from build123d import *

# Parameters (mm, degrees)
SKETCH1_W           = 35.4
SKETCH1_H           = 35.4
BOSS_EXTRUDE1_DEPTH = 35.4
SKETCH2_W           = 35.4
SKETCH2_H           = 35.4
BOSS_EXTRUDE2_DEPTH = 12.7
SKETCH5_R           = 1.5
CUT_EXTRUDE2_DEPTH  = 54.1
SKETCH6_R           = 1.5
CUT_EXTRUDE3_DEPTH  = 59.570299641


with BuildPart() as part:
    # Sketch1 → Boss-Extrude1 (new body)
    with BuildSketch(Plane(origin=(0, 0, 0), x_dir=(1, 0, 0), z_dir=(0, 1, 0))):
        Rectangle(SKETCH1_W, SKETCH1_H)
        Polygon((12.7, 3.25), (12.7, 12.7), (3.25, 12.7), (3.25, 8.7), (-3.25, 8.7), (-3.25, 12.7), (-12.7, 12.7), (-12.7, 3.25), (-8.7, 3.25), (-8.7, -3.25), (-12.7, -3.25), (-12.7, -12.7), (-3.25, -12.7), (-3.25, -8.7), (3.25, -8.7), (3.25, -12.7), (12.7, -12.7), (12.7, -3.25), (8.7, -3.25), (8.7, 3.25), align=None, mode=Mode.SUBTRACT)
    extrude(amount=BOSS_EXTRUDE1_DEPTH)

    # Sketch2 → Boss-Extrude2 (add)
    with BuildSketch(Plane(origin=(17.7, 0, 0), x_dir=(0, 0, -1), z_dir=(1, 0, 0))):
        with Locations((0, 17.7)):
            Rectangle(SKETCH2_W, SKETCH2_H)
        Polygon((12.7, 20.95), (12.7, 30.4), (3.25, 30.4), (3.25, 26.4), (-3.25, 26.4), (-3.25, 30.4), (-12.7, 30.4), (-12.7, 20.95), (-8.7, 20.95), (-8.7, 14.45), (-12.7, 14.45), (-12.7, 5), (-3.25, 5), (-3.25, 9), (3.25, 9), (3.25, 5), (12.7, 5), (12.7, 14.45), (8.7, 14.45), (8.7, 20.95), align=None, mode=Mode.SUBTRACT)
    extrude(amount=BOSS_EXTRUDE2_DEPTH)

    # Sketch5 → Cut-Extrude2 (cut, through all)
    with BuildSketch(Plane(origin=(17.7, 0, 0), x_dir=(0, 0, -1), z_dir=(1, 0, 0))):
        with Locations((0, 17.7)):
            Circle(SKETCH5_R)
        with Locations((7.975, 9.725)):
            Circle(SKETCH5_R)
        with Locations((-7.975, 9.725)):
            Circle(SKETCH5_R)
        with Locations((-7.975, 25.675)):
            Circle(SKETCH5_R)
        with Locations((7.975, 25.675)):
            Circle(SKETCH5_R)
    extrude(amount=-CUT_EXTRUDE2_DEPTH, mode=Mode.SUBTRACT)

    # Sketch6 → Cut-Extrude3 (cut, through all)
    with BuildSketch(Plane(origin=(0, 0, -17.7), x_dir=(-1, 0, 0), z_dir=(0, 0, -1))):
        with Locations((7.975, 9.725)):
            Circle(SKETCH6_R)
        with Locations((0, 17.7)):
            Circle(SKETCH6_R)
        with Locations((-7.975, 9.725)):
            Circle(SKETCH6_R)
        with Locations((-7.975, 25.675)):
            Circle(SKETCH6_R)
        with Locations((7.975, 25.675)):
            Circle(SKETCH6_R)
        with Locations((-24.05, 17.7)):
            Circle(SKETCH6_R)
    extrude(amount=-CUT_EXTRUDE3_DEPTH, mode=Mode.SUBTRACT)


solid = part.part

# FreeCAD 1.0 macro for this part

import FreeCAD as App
import Part
import Sketcher
Q = App.Units.Quantity


def add_polygon(sketch, points):
    """Adds a closed chain of lines whose ends are joined by coincident constraints."""
    first, n = sketch.GeometryCount, len(points)
    for a, b in zip(points, points[1:] + points[:1]):
        sketch.addGeometry(Part.LineSegment(App.Vector(*a, 0), App.Vector(*b, 0)), False)
    for i in range(n):
        sketch.addConstraint(Sketcher.Constraint("Coincident", first + i, 2, first + (i + 1) % n, 1))

doc = App.newDocument("Part")
params = doc.addObject("Spreadsheet::Sheet", "Params")
for row, (alias, value) in enumerate([
    ("sketch1_width", "4 mm"),
    ("sketch1_width2", "35.4 mm"),
    ("sketch1_width3", "6.5 mm"),
    ("pad1_length", "35.4 mm"),
    ("sketch2_width", "4 mm"),
    ("sketch2_width2", "35.4 mm"),
    ("sketch2_width3", "6.5 mm"),
    ("pad2_length", "12.7 mm"),
    ("sketch3_diameter", "3 mm"),
    ("sketch4_diameter", "3 mm"),
], start=1):
    params.set(f"A{row}", alias)
    params.set(f"B{row}", "=" + value)
    params.setAlias(f"B{row}", alias)

body = doc.addObject("PartDesign::Body", "Body")

sketch1 = doc.addObject("Sketcher::SketchObject", "Sketch")
body.addObject(sketch1)
sketch1.AttachmentSupport = (doc.XZ_Plane, [""])
sketch1.MapMode = "FlatFace"
add_polygon(sketch1, [(-17.7, -17.7), (-17.7, 17.7), (17.7, 17.7), (17.7, -17.7)])
add_polygon(sketch1, [(12.7, -12.7), (12.7, -3.25), (8.7, -3.25), (8.7, 3.25), (12.7, 3.25), (12.7, 12.7), (3.25, 12.7), (3.25, 8.7), (-3.25, 8.7), (-3.25, 12.7), (-12.7, 12.7), (-12.7, 3.25), (-8.7, 3.25), (-8.7, -3.25), (-12.7, -3.25), (-12.7, -12.7), (-3.25, -12.7), (-3.25, -8.7), (3.25, -8.7), (3.25, -12.7)])
sketch1.addConstraint([
    Sketcher.Constraint("Vertical", 0),
    Sketcher.Constraint("Horizontal", 1),
    Sketcher.Constraint("Vertical", 2),
    Sketcher.Constraint("Horizontal", 3),
    Sketcher.Constraint("Vertical", 4),
    Sketcher.Constraint("Horizontal", 5),
    Sketcher.Constraint("Vertical", 6),
    Sketcher.Constraint("Horizontal", 7),
    Sketcher.Constraint("Vertical", 8),
    Sketcher.Constraint("Horizontal", 9),
    Sketcher.Constraint("Vertical", 10),
    Sketcher.Constraint("Horizontal", 11),
    Sketcher.Constraint("Vertical", 12),
    Sketcher.Constraint("Horizontal", 13),
    Sketcher.Constraint("Vertical", 14),
    Sketcher.Constraint("Horizontal", 15),
    Sketcher.Constraint("Vertical", 16),
    Sketcher.Constraint("Horizontal", 17),
    Sketcher.Constraint("Vertical", 18),
    Sketcher.Constraint("Horizontal", 19),
    Sketcher.Constraint("Vertical", 20),
    Sketcher.Constraint("Horizontal", 21),
    Sketcher.Constraint("Vertical", 22),
    Sketcher.Constraint("Horizontal", 23),
    Sketcher.Constraint("Symmetric", 0, 2, 2, 2, -1, 1),
    Sketcher.Constraint("Symmetric", 4, 2, 14, 2, -1, 1),
    Sketcher.Constraint("Symmetric", 6, 2, 16, 2, -1, 1),
    Sketcher.Constraint("Symmetric", 8, 2, 18, 2, -1, 1),
    Sketcher.Constraint("Symmetric", 10, 2, 20, 2, -1, 1),
    Sketcher.Constraint("Symmetric", 12, 2, 22, 2, -1, 1),
    Sketcher.Constraint("Symmetric", 9, 2, 12, 2, -2),
    Sketcher.Constraint("Symmetric", 7, 2, 14, 2, -2),
    Sketcher.Constraint("Equal", 3, 0),
    Sketcher.Constraint("Equal", 23, 4),
    Sketcher.Constraint("Equal", 21, 6),
    Sketcher.Constraint("Equal", 17, 10),
    Sketcher.Constraint("DistanceX", 5, 2, 5, 1, Q("4 mm")),
    Sketcher.Constraint("DistanceX", 1, 1, 1, 2, Q("35.4 mm")),
    Sketcher.Constraint("DistanceX", 11, 2, 11, 1, Q("6.5 mm")),
    Sketcher.Constraint("DistanceX", 4, 2, 2, 2, Q("5 mm")),
])
sketch1.setExpression("Constraints[60]", "Params.sketch1_width")
sketch1.setExpression("Constraints[61]", "Params.sketch1_width2")
sketch1.setExpression("Constraints[62]", "Params.sketch1_width3")
pad1 = doc.addObject("PartDesign::Pad", "Pad")
body.addObject(pad1)
pad1.Profile = sketch1
pad1.setExpression("Length", "Params.pad1_length")
pad1.Reversed = True

sketch2 = doc.addObject("Sketcher::SketchObject", "Sketch001")
body.addObject(sketch2)
sketch2.AttachmentSupport = (doc.YZ_Plane, [""])
sketch2.MapMode = "FlatFace"
sketch2.AttachmentOffset = App.Placement(App.Vector(0, 0, 17.7), App.Rotation())
add_polygon(sketch2, [(35.4, 17.7), (0, 17.7), (0, -17.7), (35.4, -17.7)])
add_polygon(sketch2, [(30.4, -12.7), (20.95, -12.7), (20.95, -8.7), (14.45, -8.7), (14.45, -12.7), (5, -12.7), (5, -3.25), (9, -3.25), (9, 3.25), (5, 3.25), (5, 12.7), (14.45, 12.7), (14.45, 8.7), (20.95, 8.7), (20.95, 12.7), (30.4, 12.7), (30.4, 3.25), (26.4, 3.25), (26.4, -3.25), (30.4, -3.25)])
sketch2.addConstraint([
    Sketcher.Constraint("Horizontal", 0),
    Sketcher.Constraint("Vertical", 1),
    Sketcher.Constraint("Horizontal", 2),
    Sketcher.Constraint("Vertical", 3),
    Sketcher.Constraint("Horizontal", 4),
    Sketcher.Constraint("Vertical", 5),
    Sketcher.Constraint("Horizontal", 6),
    Sketcher.Constraint("Vertical", 7),
    Sketcher.Constraint("Horizontal", 8),
    Sketcher.Constraint("Vertical", 9),
    Sketcher.Constraint("Horizontal", 10),
    Sketcher.Constraint("Vertical", 11),
    Sketcher.Constraint("Horizontal", 12),
    Sketcher.Constraint("Vertical", 13),
    Sketcher.Constraint("Horizontal", 14),
    Sketcher.Constraint("Vertical", 15),
    Sketcher.Constraint("Horizontal", 16),
    Sketcher.Constraint("Vertical", 17),
    Sketcher.Constraint("Horizontal", 18),
    Sketcher.Constraint("Vertical", 19),
    Sketcher.Constraint("Horizontal", 20),
    Sketcher.Constraint("Vertical", 21),
    Sketcher.Constraint("Horizontal", 22),
    Sketcher.Constraint("Vertical", 23),
    Sketcher.Constraint("Symmetric", 0, 2, 1, 2, -1, 1),
    Sketcher.Constraint("Symmetric", 9, 2, 12, 2, -1),
    Sketcher.Constraint("Symmetric", 7, 2, 14, 2, -1),
    Sketcher.Constraint("Symmetric", 5, 2, 16, 2, -1),
    Sketcher.Constraint("Symmetric", 19, 2, 22, 2, -1),
    Sketcher.Constraint("Horizontal", 4, 2, 7, 2),
    Sketcher.Constraint("Horizontal", 14, 2, 17, 2),
    Sketcher.Constraint("Horizontal", 12, 2, 19, 2),
    Sketcher.Constraint("Equal", 4, 8),
    Sketcher.Constraint("Equal", 12, 20),
    Sketcher.Constraint("Equal", 2, 1),
    Sketcher.Constraint("Equal", 22, 5),
    Sketcher.Constraint("Equal", 18, 9),
    Sketcher.Constraint("Equal", 16, 11),
    Sketcher.Constraint("DistanceX", 10, 1, 10, 2, Q("4 mm")),
    Sketcher.Constraint("DistanceX", 0, 2, 0, 1, Q("35.4 mm")),
    Sketcher.Constraint("DistanceX", 6, 2, 6, 1, Q("6.5 mm")),
    Sketcher.Constraint("DistanceX", -1, 1, 8, 2, Q("5 mm")),
    Sketcher.Constraint("DistanceY", 2, 2, 4, 2, Q("5 mm")),
])
sketch2.setExpression("Constraints[62]", "Params.sketch2_width")
sketch2.setExpression("Constraints[63]", "Params.sketch2_width2")
sketch2.setExpression("Constraints[64]", "Params.sketch2_width3")
pad2 = doc.addObject("PartDesign::Pad", "Pad001")
body.addObject(pad2)
pad2.Profile = sketch2
pad2.setExpression("Length", "Params.pad2_length")

sketch3 = doc.addObject("Sketcher::SketchObject", "Sketch002")
body.addObject(sketch3)
sketch3.AttachmentSupport = (doc.YZ_Plane, [""])
sketch3.MapMode = "FlatFace"
sketch3.AttachmentOffset = App.Placement(App.Vector(0, 0, 17.7), App.Rotation())
sketch3.addGeometry([
    Part.Circle(App.Vector(17.7, 0, 0), App.Vector(0, 0, 1), 1.5),
    Part.Circle(App.Vector(9.725, -7.975, 0), App.Vector(0, 0, 1), 1.5),
    Part.Circle(App.Vector(9.725, 7.975, 0), App.Vector(0, 0, 1), 1.5),
    Part.Circle(App.Vector(25.675, 7.975, 0), App.Vector(0, 0, 1), 1.5),
    Part.Circle(App.Vector(25.675, -7.975, 0), App.Vector(0, 0, 1), 1.5),
], False)
sketch3.addConstraint([
    Sketcher.Constraint("Equal", 0, 1),
    Sketcher.Constraint("Equal", 1, 2),
    Sketcher.Constraint("Equal", 2, 3),
    Sketcher.Constraint("Equal", 3, 4),
    Sketcher.Constraint("Symmetric", 1, 3, 2, 3, -1),
    Sketcher.Constraint("Symmetric", 3, 3, 4, 3, -1),
    Sketcher.Constraint("PointOnObject", 0, 3, -1),
    Sketcher.Constraint("Horizontal", 2, 3, 3, 3),
    Sketcher.Constraint("Diameter", 0, Q("3 mm")),
    Sketcher.Constraint("DistanceX", -1, 1, 0, 3, Q("17.7 mm")),
    Sketcher.Constraint("DistanceY", 1, 3, 2, 3, Q("15.95 mm")),
    Sketcher.Constraint("DistanceX", 2, 3, 3, 3, Q("15.95 mm")),
    Sketcher.Constraint("DistanceX", -1, 1, 1, 3, Q("9.725 mm")),
])
sketch3.setExpression("Constraints[8]", "Params.sketch3_diameter")
pocket1 = doc.addObject("PartDesign::Pocket", "Pocket")
body.addObject(pocket1)
pocket1.Profile = sketch3
pocket1.Type = "ThroughAll"

sketch4 = doc.addObject("Sketcher::SketchObject", "Sketch003")
body.addObject(sketch4)
sketch4.AttachmentSupport = (doc.XY_Plane, [""])
sketch4.MapMode = "FlatFace"
sketch4.AttachmentOffset = App.Placement(App.Vector(0, 0, -17.7), App.Rotation())
sketch4.addGeometry([
    Part.Circle(App.Vector(-7.975, 9.725, 0), App.Vector(0, 0, 1), 1.5),
    Part.Circle(App.Vector(0, 17.7, 0), App.Vector(0, 0, 1), 1.5),
    Part.Circle(App.Vector(7.975, 9.725, 0), App.Vector(0, 0, 1), 1.5),
    Part.Circle(App.Vector(7.975, 25.675, 0), App.Vector(0, 0, 1), 1.5),
    Part.Circle(App.Vector(-7.975, 25.675, 0), App.Vector(0, 0, 1), 1.5),
    Part.Circle(App.Vector(24.05, 17.7, 0), App.Vector(0, 0, 1), 1.5),
], False)
sketch4.addConstraint([
    Sketcher.Constraint("Equal", 0, 1),
    Sketcher.Constraint("Equal", 1, 2),
    Sketcher.Constraint("Equal", 2, 3),
    Sketcher.Constraint("Equal", 3, 4),
    Sketcher.Constraint("Equal", 4, 5),
    Sketcher.Constraint("Symmetric", 0, 3, 2, 3, -2),
    Sketcher.Constraint("Symmetric", 3, 3, 4, 3, -2),
    Sketcher.Constraint("PointOnObject", 1, 3, -2),
    Sketcher.Constraint("Horizontal", 1, 3, 5, 3),
    Sketcher.Constraint("Vertical", 2, 3, 3, 3),
    Sketcher.Constraint("Diameter", 0, Q("3 mm")),
    Sketcher.Constraint("DistanceY", -1, 1, 1, 3, Q("17.7 mm")),
    Sketcher.Constraint("DistanceX", -1, 1, 5, 3, Q("24.05 mm")),
    Sketcher.Constraint("DistanceX", 0, 3, 2, 3, Q("15.95 mm")),
    Sketcher.Constraint("DistanceY", 2, 3, 3, 3, Q("15.95 mm")),
    Sketcher.Constraint("DistanceY", -1, 1, 0, 3, Q("9.725 mm")),
])
sketch4.setExpression("Constraints[10]", "Params.sketch4_diameter")
pocket2 = doc.addObject("PartDesign::Pocket", "Pocket001")
body.addObject(pocket2)
pocket2.Profile = sketch4
pocket2.Type = "ThroughAll"
pocket2.Reversed = True

doc.recompute()
